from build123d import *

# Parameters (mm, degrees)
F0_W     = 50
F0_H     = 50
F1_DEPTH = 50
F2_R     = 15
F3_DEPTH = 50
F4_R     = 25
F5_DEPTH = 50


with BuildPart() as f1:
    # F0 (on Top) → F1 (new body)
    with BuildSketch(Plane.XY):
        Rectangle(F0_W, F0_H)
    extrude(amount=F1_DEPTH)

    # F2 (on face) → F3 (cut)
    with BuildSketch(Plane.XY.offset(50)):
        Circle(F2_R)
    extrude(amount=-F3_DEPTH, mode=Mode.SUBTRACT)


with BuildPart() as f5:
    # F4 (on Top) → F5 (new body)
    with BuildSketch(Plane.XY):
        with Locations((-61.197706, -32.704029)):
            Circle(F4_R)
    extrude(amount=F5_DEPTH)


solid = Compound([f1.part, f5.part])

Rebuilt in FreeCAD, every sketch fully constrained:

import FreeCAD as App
import Part
import Sketcher

V = App.Vector


def add_polygon(sketch, points):
    """Adds a closed chain of lines whose ends are joined by coincident constraints."""
    first, n = sketch.GeometryCount, len(points)
    for a, b in zip(points, points[1:] + points[:1]):
        sketch.addGeometry(Part.LineSegment(App.Vector(*a, 0), App.Vector(*b, 0)), False)
    for i in range(n):
        sketch.addConstraint(Sketcher.Constraint("Coincident", first + i, 2, first + (i + 1) % n, 1))

doc = App.newDocument("Part")
params = doc.addObject("Spreadsheet::Sheet", "Params")
for row, (alias, value) in enumerate([
    ("sketch1_width", "50 mm"),
    ("pad1_length", "50 mm"),
    ("sketch2_diameter", "30 mm"),
    ("pocket1_length", "50 mm"),
    ("sketch3_diameter", "50 mm"),
    ("pad2_length", "50 mm"),
], start=1):
    params.set(f"A{row}", alias)
    params.set(f"B{row}", "=" + value)
    params.setAlias(f"B{row}", alias)

body = doc.addObject("PartDesign::Body", "Body")

# Sketch on XY plane
sketch1 = body.newObject("Sketcher::SketchObject", "Sketch")
sketch1.AttachmentSupport = (doc.getObject("XY_Plane"), [""])
sketch1.MapMode = "FlatFace"
add_polygon(sketch1, [(-25, 25), (-25, -25), (25, -25), (25, 25)])  # lines 0-3
sketch1.addConstraint([
    Sketcher.Constraint("Vertical", 0),
    Sketcher.Constraint("Horizontal", 1),
    Sketcher.Constraint("Vertical", 2),
    Sketcher.Constraint("Horizontal", 3),
    Sketcher.Constraint("Symmetric", 0, 2, 2, 2, -1, 1),
    Sketcher.Constraint("Equal", 3, 0),
    Sketcher.Constraint("DistanceX", 1, 1, 1, 2, 50.0),
])
sketch1.setExpression("Constraints[10]", "Params.sketch1_width")
pad1 = body.newObject("PartDesign::Pad", "Pad")
pad1.Profile = sketch1
pad1.setExpression("Length", "Params.pad1_length")

# Sketch on XY plane
sketch2 = body.newObject("Sketcher::SketchObject", "Sketch001")
sketch2.AttachmentSupport = (doc.getObject("XY_Plane"), [""])
sketch2.MapMode = "FlatFace"
sketch2.AttachmentOffset = App.Placement(V(0, 0, 50), App.Rotation())
sketch2.addGeometry(Part.Circle(V(0, 0, 0), V(0, 0, 1), 15), False)
sketch2.addConstraint([
    Sketcher.Constraint("Coincident", 0, 3, -1, 1),
    Sketcher.Constraint("Diameter", 0, 30.0),
])
sketch2.setExpression("Constraints[1]", "Params.sketch2_diameter")
pocket1 = body.newObject("PartDesign::Pocket", "Pocket")
pocket1.Profile = sketch2
pocket1.setExpression("Length", "Params.pocket1_length")
body2 = doc.addObject("PartDesign::Body", "Body001")

# Sketch on XY plane
sketch3 = body2.newObject("Sketcher::SketchObject", "Sketch002")
sketch3.AttachmentSupport = (doc.getObject("XY_Plane001"), [""])
sketch3.MapMode = "FlatFace"
sketch3.addGeometry(Part.Circle(V(-61, -33, 0), V(0, 0, 1), 25), False)
sketch3.addConstraint([
    Sketcher.Constraint("Diameter", 0, 50.0),
    Sketcher.Constraint("DistanceY", 0, 3, -1, 1, 32.704029),
    Sketcher.Constraint("DistanceX", 0, 3, -1, 1, 61.197706),
])
sketch3.setExpression("Constraints[0]", "Params.sketch3_diameter")
pad2 = body2.newObject("PartDesign::Pad", "Pad001")
pad2.Profile = sketch3
pad2.setExpression("Length", "Params.pad2_length")

doc.recompute()
